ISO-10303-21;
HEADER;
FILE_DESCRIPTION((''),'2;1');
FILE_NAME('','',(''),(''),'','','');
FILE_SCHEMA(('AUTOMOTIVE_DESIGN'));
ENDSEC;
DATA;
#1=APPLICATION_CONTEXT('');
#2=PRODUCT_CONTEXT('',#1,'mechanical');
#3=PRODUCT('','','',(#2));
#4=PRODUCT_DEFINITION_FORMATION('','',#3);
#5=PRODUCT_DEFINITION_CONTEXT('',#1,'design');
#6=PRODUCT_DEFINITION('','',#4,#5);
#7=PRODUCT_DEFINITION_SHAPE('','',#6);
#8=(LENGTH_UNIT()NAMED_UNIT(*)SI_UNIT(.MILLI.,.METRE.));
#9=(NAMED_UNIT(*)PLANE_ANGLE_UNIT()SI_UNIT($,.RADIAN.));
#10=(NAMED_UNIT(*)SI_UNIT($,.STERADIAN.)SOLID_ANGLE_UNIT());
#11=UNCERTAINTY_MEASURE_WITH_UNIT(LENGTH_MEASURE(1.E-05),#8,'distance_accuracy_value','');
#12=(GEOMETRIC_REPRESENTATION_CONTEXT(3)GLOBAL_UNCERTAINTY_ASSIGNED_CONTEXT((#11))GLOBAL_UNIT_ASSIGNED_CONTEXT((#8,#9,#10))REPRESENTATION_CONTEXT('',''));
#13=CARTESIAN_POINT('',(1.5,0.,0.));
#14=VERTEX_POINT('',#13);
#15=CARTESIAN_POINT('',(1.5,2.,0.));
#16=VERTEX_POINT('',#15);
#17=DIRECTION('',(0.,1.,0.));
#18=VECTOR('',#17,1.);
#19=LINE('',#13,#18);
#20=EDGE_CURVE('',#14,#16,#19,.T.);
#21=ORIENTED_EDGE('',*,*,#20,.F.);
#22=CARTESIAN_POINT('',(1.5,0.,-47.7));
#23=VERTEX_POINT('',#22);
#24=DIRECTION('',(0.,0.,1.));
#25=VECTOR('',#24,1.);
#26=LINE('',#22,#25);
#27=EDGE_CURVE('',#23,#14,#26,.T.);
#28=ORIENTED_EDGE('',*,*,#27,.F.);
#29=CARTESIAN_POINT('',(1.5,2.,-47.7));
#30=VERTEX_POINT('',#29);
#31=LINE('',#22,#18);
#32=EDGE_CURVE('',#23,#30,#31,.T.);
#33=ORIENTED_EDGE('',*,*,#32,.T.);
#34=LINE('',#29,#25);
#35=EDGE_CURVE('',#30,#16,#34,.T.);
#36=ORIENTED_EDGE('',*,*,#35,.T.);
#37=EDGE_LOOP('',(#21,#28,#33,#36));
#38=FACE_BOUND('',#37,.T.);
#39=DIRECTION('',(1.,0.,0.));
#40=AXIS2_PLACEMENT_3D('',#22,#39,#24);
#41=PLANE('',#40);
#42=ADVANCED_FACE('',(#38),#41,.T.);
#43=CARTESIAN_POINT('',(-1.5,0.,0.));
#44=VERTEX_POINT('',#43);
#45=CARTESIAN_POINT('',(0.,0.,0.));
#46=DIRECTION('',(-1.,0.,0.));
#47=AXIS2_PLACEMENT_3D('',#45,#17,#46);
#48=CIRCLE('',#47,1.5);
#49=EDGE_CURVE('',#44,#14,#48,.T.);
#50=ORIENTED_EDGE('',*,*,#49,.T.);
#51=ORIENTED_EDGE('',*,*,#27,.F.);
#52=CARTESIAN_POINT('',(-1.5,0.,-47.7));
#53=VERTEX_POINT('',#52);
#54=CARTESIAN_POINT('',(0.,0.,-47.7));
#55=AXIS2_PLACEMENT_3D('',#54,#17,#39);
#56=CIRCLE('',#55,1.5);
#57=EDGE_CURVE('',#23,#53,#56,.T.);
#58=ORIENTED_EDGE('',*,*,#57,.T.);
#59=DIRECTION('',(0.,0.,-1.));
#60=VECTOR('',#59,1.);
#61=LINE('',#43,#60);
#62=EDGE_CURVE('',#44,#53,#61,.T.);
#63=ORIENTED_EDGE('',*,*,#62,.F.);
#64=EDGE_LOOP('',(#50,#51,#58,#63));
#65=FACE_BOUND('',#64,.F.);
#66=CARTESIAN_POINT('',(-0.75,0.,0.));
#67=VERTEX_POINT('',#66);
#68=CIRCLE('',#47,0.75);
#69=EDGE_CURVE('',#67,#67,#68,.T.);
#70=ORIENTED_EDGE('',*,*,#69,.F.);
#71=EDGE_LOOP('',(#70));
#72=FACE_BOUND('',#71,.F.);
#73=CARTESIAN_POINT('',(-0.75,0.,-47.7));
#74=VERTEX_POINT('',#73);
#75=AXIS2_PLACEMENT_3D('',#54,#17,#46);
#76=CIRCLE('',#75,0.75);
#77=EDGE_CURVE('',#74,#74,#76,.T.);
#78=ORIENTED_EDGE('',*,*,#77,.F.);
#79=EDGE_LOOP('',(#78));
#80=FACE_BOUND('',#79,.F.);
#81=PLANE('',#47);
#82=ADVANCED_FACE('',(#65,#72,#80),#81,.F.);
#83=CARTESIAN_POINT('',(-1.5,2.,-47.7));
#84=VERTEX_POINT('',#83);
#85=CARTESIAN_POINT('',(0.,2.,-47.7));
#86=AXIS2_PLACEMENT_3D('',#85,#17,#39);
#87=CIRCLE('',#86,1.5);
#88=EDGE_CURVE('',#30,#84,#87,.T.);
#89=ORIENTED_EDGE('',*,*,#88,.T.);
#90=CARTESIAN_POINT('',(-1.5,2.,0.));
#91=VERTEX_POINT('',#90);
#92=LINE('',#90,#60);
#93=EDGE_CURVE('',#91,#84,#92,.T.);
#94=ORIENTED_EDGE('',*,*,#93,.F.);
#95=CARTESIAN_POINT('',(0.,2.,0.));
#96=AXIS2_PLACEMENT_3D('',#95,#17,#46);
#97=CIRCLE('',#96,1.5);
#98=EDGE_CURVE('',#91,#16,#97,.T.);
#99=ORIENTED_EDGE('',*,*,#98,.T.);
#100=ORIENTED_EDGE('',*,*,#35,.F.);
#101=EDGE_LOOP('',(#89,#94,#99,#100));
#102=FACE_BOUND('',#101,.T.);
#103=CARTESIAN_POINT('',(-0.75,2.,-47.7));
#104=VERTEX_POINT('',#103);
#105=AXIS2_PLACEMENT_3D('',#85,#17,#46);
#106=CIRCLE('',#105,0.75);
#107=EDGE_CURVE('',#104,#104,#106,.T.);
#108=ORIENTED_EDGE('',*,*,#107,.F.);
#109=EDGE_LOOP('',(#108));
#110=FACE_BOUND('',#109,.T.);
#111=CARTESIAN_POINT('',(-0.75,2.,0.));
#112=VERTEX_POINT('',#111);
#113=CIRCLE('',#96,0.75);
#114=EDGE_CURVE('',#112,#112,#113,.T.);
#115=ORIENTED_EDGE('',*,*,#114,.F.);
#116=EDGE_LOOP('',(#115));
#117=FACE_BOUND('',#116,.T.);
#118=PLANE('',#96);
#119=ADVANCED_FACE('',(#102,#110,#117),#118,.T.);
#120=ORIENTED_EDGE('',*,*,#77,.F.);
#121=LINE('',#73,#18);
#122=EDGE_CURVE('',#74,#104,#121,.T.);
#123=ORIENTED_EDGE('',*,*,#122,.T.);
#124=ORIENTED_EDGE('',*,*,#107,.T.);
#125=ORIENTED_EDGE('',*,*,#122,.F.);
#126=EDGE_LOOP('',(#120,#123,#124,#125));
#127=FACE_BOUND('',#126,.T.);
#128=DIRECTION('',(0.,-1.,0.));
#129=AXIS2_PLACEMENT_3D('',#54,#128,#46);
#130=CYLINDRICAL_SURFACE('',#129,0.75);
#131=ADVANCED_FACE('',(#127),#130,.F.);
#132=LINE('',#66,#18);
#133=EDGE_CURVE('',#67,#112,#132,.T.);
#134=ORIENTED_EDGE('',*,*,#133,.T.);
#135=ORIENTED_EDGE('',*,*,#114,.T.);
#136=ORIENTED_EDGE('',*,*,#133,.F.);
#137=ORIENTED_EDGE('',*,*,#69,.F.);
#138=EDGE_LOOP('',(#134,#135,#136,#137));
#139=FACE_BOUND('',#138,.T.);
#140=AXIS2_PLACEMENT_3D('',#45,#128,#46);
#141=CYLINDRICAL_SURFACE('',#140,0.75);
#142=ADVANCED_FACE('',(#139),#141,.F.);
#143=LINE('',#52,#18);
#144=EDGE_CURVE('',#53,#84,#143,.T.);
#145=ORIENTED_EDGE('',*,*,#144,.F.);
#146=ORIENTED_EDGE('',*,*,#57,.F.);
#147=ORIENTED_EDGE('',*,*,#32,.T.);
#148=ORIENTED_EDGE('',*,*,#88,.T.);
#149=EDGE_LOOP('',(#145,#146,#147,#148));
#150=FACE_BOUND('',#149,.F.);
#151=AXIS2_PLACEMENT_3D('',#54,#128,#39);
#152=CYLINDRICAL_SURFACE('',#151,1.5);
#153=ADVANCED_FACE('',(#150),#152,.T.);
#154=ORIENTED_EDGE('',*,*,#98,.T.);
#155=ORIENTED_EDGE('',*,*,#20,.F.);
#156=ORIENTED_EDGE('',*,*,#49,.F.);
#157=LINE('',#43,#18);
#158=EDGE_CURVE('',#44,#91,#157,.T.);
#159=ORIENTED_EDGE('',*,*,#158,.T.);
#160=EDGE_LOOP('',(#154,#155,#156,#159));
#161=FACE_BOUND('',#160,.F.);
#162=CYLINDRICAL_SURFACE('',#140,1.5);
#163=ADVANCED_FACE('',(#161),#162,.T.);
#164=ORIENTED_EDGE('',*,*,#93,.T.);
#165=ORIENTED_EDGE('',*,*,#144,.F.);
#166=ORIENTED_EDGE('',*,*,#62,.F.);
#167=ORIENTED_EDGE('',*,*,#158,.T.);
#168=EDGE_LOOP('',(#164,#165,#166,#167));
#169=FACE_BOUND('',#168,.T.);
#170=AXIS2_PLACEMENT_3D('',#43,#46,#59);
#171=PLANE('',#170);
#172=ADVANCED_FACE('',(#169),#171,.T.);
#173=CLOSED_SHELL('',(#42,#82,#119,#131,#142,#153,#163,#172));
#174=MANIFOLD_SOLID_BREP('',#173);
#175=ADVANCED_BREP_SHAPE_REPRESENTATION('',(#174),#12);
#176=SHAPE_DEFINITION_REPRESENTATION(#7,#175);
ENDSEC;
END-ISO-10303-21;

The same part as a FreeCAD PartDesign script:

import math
import FreeCAD as App
import Part
import Sketcher
from FreeCAD import Vector
Q = App.Units.Quantity

doc = App.newDocument("Part")
body = doc.addObject("PartDesign::Body", "Body")

# Sketch on XZ plane
sketch1 = doc.addObject("Sketcher::SketchObject", "Sketch")
body.addObject(sketch1)
sketch1.AttachmentSupport = (doc.XZ_Plane, [""])
sketch1.MapMode = "FlatFace"
sketch1.addGeometry([
    Part.LineSegment(Vector(-1.5, -47.7, 0), Vector(-1.5, 0, 0)),  # 0
    Part.ArcOfCircle(Part.Circle(Vector(0, 0, 0), Vector(0, 0, 1), 1.5), math.radians(0), math.radians(180)),  # 1
    Part.LineSegment(Vector(1.5, 0, 0), Vector(1.5, -47.7, 0)),  # 2
    Part.ArcOfCircle(Part.Circle(Vector(0, -47.7, 0), Vector(0, 0, 1), 1.5), math.radians(180), math.radians(360)),  # 3
    Part.Circle(Vector(0, -47.7, 0), Vector(0, 0, 1), 0.8),  # 4
    Part.Circle(Vector(0, 0, 0), Vector(0, 0, 1), 0.8),  # 5
], False)
sketch1.addConstraint([
    Sketcher.Constraint("Tangent", 0, 2, 1, 2),
    Sketcher.Constraint("Tangent", 1, 1, 2, 1),
    Sketcher.Constraint("Tangent", 2, 2, 3, 2),
    Sketcher.Constraint("Tangent", 3, 1, 0, 1),
    Sketcher.Constraint("Vertical", 0),
    Sketcher.Constraint("Vertical", 2),
    Sketcher.Constraint("Coincident", 1, 3, -1, 1),
    Sketcher.Constraint("Coincident", 5, 3, -1, 1),
    Sketcher.Constraint("Coincident", 4, 3, 3, 3),
    Sketcher.Constraint("Equal", 4, 5),
    Sketcher.Constraint("Diameter", 4, Q("1.5 mm")),
    Sketcher.Constraint("Radius", 1, Q("1.5 mm")),
    Sketcher.Constraint("DistanceY", 0, 1, 0, 2, Q("47.7 mm")),
])
pad1 = doc.addObject("PartDesign::Pad", "Pad")
body.addObject(pad1)
pad1.Profile = sketch1
pad1.Length = 2
pad1.Reversed = True

doc.recompute()
